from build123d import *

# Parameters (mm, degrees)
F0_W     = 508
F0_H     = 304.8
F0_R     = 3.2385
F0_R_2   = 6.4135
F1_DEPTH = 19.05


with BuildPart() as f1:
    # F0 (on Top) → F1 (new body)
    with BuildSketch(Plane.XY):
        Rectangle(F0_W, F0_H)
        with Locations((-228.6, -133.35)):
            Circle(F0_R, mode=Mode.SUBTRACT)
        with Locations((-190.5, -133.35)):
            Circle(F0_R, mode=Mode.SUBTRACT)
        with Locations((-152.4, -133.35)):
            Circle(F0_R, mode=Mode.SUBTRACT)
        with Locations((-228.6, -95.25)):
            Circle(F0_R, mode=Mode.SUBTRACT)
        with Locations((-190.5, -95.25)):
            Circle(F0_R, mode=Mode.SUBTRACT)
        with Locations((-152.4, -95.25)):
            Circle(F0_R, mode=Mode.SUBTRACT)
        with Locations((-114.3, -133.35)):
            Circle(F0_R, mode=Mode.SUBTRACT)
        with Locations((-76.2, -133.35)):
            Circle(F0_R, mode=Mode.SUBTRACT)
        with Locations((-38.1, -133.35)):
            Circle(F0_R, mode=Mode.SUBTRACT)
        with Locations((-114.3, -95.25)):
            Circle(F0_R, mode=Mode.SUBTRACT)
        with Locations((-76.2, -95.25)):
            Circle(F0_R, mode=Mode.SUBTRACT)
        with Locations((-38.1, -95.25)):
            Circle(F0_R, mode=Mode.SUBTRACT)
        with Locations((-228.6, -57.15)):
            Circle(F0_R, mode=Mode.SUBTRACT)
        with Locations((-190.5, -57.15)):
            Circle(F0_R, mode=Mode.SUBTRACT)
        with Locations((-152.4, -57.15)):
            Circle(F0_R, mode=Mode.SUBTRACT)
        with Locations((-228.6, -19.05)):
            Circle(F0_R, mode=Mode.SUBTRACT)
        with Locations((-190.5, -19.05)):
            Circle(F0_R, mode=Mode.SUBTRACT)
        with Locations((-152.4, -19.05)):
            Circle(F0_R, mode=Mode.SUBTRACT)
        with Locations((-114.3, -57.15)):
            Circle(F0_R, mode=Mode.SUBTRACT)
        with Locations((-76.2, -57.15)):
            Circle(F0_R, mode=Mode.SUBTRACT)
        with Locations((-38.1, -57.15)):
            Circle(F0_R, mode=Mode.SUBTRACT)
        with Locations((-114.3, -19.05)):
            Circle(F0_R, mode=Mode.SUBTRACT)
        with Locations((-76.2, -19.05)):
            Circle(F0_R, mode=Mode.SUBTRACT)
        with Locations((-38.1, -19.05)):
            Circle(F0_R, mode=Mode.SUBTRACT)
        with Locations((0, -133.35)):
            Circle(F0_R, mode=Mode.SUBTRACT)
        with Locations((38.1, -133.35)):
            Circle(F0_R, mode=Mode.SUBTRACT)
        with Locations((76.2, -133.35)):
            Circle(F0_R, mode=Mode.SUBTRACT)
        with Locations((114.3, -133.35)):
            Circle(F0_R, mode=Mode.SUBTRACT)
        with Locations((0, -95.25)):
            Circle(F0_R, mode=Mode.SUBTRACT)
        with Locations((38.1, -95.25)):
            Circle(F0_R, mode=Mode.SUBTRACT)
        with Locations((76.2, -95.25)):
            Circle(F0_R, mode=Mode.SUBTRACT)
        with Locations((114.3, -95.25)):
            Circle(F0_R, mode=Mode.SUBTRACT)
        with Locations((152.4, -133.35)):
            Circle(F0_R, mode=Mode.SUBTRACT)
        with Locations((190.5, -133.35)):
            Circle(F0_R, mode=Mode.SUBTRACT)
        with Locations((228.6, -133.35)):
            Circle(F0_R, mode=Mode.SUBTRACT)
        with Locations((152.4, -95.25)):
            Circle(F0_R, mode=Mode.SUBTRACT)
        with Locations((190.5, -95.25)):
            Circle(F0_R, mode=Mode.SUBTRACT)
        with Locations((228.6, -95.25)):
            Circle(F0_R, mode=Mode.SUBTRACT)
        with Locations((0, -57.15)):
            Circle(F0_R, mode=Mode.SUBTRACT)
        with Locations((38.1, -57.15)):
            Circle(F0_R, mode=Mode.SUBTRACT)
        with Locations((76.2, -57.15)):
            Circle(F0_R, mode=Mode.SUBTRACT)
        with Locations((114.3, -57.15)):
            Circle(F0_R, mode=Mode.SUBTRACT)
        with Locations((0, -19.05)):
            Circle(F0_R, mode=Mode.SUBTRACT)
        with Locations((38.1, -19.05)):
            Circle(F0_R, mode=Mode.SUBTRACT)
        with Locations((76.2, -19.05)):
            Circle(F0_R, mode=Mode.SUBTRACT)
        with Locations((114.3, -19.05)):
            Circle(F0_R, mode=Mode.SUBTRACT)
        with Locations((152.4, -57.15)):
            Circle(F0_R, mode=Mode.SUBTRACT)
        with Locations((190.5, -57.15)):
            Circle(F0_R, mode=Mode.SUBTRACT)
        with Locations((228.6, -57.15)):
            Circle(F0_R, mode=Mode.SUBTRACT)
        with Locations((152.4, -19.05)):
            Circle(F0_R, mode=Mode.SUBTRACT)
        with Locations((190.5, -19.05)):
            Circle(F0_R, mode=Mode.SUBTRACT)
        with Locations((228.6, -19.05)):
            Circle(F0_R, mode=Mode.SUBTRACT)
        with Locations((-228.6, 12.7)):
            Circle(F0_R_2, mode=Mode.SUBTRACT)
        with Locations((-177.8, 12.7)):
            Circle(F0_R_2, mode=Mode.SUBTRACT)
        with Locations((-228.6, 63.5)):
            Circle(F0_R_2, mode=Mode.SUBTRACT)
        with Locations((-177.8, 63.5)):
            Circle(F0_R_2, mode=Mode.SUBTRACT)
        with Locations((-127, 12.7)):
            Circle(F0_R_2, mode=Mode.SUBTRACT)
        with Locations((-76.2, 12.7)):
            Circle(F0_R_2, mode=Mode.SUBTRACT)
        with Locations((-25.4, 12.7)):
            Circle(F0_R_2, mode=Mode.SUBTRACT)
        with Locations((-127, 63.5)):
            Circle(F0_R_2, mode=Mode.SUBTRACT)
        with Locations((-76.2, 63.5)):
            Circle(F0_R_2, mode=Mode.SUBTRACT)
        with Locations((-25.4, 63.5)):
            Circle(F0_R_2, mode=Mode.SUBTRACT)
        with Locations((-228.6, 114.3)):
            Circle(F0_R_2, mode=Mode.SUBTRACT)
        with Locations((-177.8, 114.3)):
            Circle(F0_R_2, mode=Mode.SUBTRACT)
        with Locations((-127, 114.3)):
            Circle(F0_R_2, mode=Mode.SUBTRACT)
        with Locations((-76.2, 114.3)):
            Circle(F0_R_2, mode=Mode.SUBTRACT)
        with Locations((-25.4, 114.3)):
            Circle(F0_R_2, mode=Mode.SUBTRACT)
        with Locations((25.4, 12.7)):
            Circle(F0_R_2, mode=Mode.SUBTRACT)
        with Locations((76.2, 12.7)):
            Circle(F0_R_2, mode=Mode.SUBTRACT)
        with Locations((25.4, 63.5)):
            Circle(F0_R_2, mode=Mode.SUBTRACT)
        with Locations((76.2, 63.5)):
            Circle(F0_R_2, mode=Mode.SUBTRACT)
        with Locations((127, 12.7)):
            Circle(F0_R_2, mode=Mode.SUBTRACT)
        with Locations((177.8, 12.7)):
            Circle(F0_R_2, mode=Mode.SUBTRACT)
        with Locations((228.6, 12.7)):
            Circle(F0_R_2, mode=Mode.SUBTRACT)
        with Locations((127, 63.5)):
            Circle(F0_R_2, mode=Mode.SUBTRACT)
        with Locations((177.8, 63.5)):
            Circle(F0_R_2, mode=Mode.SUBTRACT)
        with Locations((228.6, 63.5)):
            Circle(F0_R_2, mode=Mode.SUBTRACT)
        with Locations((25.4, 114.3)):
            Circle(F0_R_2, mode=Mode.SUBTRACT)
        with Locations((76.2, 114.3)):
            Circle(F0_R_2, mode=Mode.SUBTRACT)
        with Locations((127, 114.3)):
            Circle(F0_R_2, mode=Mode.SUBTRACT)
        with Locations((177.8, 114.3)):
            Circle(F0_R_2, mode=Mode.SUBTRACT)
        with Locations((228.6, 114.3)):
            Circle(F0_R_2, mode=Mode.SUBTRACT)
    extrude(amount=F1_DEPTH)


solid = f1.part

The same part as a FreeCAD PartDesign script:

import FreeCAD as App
import Part
import Sketcher
Q = App.Units.Quantity

doc = App.newDocument("Part")
body = doc.addObject("PartDesign::Body", "Body")

# Sketch on XY plane
sketch1 = body.newObject("Sketcher::SketchObject", "Sketch")
sketch1.AttachmentSupport = (doc.getObject("XY_Plane"), [""])
sketch1.MapMode = "FlatFace"
sketch1.addGeometry([
    Part.LineSegment(App.Vector(-254, 152.4, 0), App.Vector(-254, -152.4, 0)),  # 0
    Part.LineSegment(App.Vector(-254, -152.4, 0), App.Vector(254, -152.4, 0)),  # 1
    Part.LineSegment(App.Vector(254, -152.4, 0), App.Vector(254, 152.4, 0)),  # 2
    Part.LineSegment(App.Vector(254, 152.4, 0), App.Vector(-254, 152.4, 0)),  # 3
    Part.Circle(App.Vector(-228.6, -133.3, 0), App.Vector(0, 0, 1), 3.2),  # 4
    Part.Circle(App.Vector(-190.5, -133.3, 0), App.Vector(0, 0, 1), 3.2),  # 5
    Part.Circle(App.Vector(-152.4, -133.3, 0), App.Vector(0, 0, 1), 3.2),  # 6
    Part.Circle(App.Vector(-228.6, -95.2, 0), App.Vector(0, 0, 1), 3.2),  # 7
    Part.Circle(App.Vector(-190.5, -95.2, 0), App.Vector(0, 0, 1), 3.2),  # 8
    Part.Circle(App.Vector(-152.4, -95.2, 0), App.Vector(0, 0, 1), 3.2),  # 9
    Part.Circle(App.Vector(-114.3, -133.3, 0), App.Vector(0, 0, 1), 3.2),  # 10
    Part.Circle(App.Vector(-76.2, -133.3, 0), App.Vector(0, 0, 1), 3.2),  # 11
    Part.Circle(App.Vector(-38.1, -133.3, 0), App.Vector(0, 0, 1), 3.2),  # 12
    Part.Circle(App.Vector(-114.3, -95.2, 0), App.Vector(0, 0, 1), 3.2),  # 13
    Part.Circle(App.Vector(-76.2, -95.2, 0), App.Vector(0, 0, 1), 3.2),  # 14
    Part.Circle(App.Vector(-38.1, -95.2, 0), App.Vector(0, 0, 1), 3.2),  # 15
    Part.Circle(App.Vector(-228.6, -57.1, 0), App.Vector(0, 0, 1), 3.2),  # 16
    Part.Circle(App.Vector(-190.5, -57.1, 0), App.Vector(0, 0, 1), 3.2),  # 17
    Part.Circle(App.Vector(-152.4, -57.1, 0), App.Vector(0, 0, 1), 3.2),  # 18
    Part.Circle(App.Vector(-228.6, -19.1, 0), App.Vector(0, 0, 1), 3.2),  # 19
    Part.Circle(App.Vector(-190.5, -19.1, 0), App.Vector(0, 0, 1), 3.2),  # 20
    Part.Circle(App.Vector(-152.4, -19.1, 0), App.Vector(0, 0, 1), 3.2),  # 21
    Part.Circle(App.Vector(-114.3, -57.1, 0), App.Vector(0, 0, 1), 3.2),  # 22
    Part.Circle(App.Vector(-76.2, -57.1, 0), App.Vector(0, 0, 1), 3.2),  # 23
    Part.Circle(App.Vector(-38.1, -57.1, 0), App.Vector(0, 0, 1), 3.2),  # 24
    Part.Circle(App.Vector(-114.3, -19.1, 0), App.Vector(0, 0, 1), 3.2),  # 25
    Part.Circle(App.Vector(-76.2, -19.1, 0), App.Vector(0, 0, 1), 3.2),  # 26
    Part.Circle(App.Vector(-38.1, -19.1, 0), App.Vector(0, 0, 1), 3.2),  # 27
    Part.Circle(App.Vector(0, -133.3, 0), App.Vector(0, 0, 1), 3.2),  # 28
    Part.Circle(App.Vector(38.1, -133.3, 0), App.Vector(0, 0, 1), 3.2),  # 29
    Part.Circle(App.Vector(76.2, -133.3, 0), App.Vector(0, 0, 1), 3.2),  # 30
    Part.Circle(App.Vector(114.3, -133.3, 0), App.Vector(0, 0, 1), 3.2),  # 31
    Part.Circle(App.Vector(0, -95.2, 0), App.Vector(0, 0, 1), 3.2),  # 32
    Part.Circle(App.Vector(38.1, -95.2, 0), App.Vector(0, 0, 1), 3.2),  # 33
    Part.Circle(App.Vector(76.2, -95.2, 0), App.Vector(0, 0, 1), 3.2),  # 34
    Part.Circle(App.Vector(114.3, -95.2, 0), App.Vector(0, 0, 1), 3.2),  # 35
    Part.Circle(App.Vector(152.4, -133.3, 0), App.Vector(0, 0, 1), 3.2),  # 36
    Part.Circle(App.Vector(190.5, -133.3, 0), App.Vector(0, 0, 1), 3.2),  # 37
    Part.Circle(App.Vector(228.6, -133.3, 0), App.Vector(0, 0, 1), 3.2),  # 38
    Part.Circle(App.Vector(152.4, -95.2, 0), App.Vector(0, 0, 1), 3.2),  # 39
    Part.Circle(App.Vector(190.5, -95.2, 0), App.Vector(0, 0, 1), 3.2),  # 40
    Part.Circle(App.Vector(228.6, -95.2, 0), App.Vector(0, 0, 1), 3.2),  # 41
    Part.Circle(App.Vector(0, -57.1, 0), App.Vector(0, 0, 1), 3.2),  # 42
    Part.Circle(App.Vector(38.1, -57.1, 0), App.Vector(0, 0, 1), 3.2),  # 43
    Part.Circle(App.Vector(76.2, -57.1, 0), App.Vector(0, 0, 1), 3.2),  # 44
    Part.Circle(App.Vector(114.3, -57.1, 0), App.Vector(0, 0, 1), 3.2),  # 45
    Part.Circle(App.Vector(0, -19.1, 0), App.Vector(0, 0, 1), 3.2),  # 46
    Part.Circle(App.Vector(38.1, -19.1, 0), App.Vector(0, 0, 1), 3.2),  # 47
    Part.Circle(App.Vector(76.2, -19.1, 0), App.Vector(0, 0, 1), 3.2),  # 48
    Part.Circle(App.Vector(114.3, -19.1, 0), App.Vector(0, 0, 1), 3.2),  # 49
    Part.Circle(App.Vector(152.4, -57.1, 0), App.Vector(0, 0, 1), 3.2),  # 50
    Part.Circle(App.Vector(190.5, -57.1, 0), App.Vector(0, 0, 1), 3.2),  # 51
    Part.Circle(App.Vector(228.6, -57.1, 0), App.Vector(0, 0, 1), 3.2),  # 52
    Part.Circle(App.Vector(152.4, -19.1, 0), App.Vector(0, 0, 1), 3.2),  # 53
    Part.Circle(App.Vector(190.5, -19.1, 0), App.Vector(0, 0, 1), 3.2),  # 54
    Part.Circle(App.Vector(228.6, -19.1, 0), App.Vector(0, 0, 1), 3.2),  # 55
    Part.Circle(App.Vector(-228.6, 12.7, 0), App.Vector(0, 0, 1), 6.4),  # 56
    Part.Circle(App.Vector(-177.8, 12.7, 0), App.Vector(0, 0, 1), 6.4),  # 57
    Part.Circle(App.Vector(-127, 12.7, 0), App.Vector(0, 0, 1), 6.4),  # 58
    Part.Circle(App.Vector(-76.2, 12.7, 0), App.Vector(0, 0, 1), 6.4),  # 59
    Part.Circle(App.Vector(-25.4, 12.7, 0), App.Vector(0, 0, 1), 6.4),  # 60
    Part.Circle(App.Vector(-228.6, 63.5, 0), App.Vector(0, 0, 1), 6.4),  # 61
    Part.Circle(App.Vector(-177.8, 63.5, 0), App.Vector(0, 0, 1), 6.4),  # 62
    Part.Circle(App.Vector(-127, 63.5, 0), App.Vector(0, 0, 1), 6.4),  # 63
    Part.Circle(App.Vector(-228.6, 114.3, 0), App.Vector(0, 0, 1), 6.4),  # 64
    Part.Circle(App.Vector(-177.8, 114.3, 0), App.Vector(0, 0, 1), 6.4),  # 65
    Part.Circle(App.Vector(-127, 114.3, 0), App.Vector(0, 0, 1), 6.4),  # 66
    Part.Circle(App.Vector(-76.2, 63.5, 0), App.Vector(0, 0, 1), 6.4),  # 67
    Part.Circle(App.Vector(-25.4, 63.5, 0), App.Vector(0, 0, 1), 6.4),  # 68
    Part.Circle(App.Vector(-76.2, 114.3, 0), App.Vector(0, 0, 1), 6.4),  # 69
    Part.Circle(App.Vector(-25.4, 114.3, 0), App.Vector(0, 0, 1), 6.4),  # 70
    Part.Circle(App.Vector(25.4, 12.7, 0), App.Vector(0, 0, 1), 6.4),  # 71
    Part.Circle(App.Vector(76.2, 12.7, 0), App.Vector(0, 0, 1), 6.4),  # 72
    Part.Circle(App.Vector(127, 12.7, 0), App.Vector(0, 0, 1), 6.4),  # 73
    Part.Circle(App.Vector(177.8, 12.7, 0), App.Vector(0, 0, 1), 6.4),  # 74
    Part.Circle(App.Vector(228.6, 12.7, 0), App.Vector(0, 0, 1), 6.4),  # 75
    Part.Circle(App.Vector(25.4, 63.5, 0), App.Vector(0, 0, 1), 6.4),  # 76
    Part.Circle(App.Vector(76.2, 63.5, 0), App.Vector(0, 0, 1), 6.4),  # 77
    Part.Circle(App.Vector(25.4, 114.3, 0), App.Vector(0, 0, 1), 6.4),  # 78
    Part.Circle(App.Vector(76.2, 114.3, 0), App.Vector(0, 0, 1), 6.4),  # 79
    Part.Circle(App.Vector(127, 63.5, 0), App.Vector(0, 0, 1), 6.4),  # 80
    Part.Circle(App.Vector(177.8, 63.5, 0), App.Vector(0, 0, 1), 6.4),  # 81
    Part.Circle(App.Vector(228.6, 63.5, 0), App.Vector(0, 0, 1), 6.4),  # 82
    Part.Circle(App.Vector(127, 114.3, 0), App.Vector(0, 0, 1), 6.4),  # 83
    Part.Circle(App.Vector(177.8, 114.3, 0), App.Vector(0, 0, 1), 6.4),  # 84
    Part.Circle(App.Vector(228.6, 114.3, 0), App.Vector(0, 0, 1), 6.4),  # 85
], False)
sketch1.addConstraint([
    Sketcher.Constraint("Coincident", 0, 2, 1, 1),
    Sketcher.Constraint("Coincident", 1, 2, 2, 1),
    Sketcher.Constraint("Coincident", 2, 2, 3, 1),
    Sketcher.Constraint("Coincident", 3, 2, 0, 1),
    Sketcher.Constraint("Vertical", 0),
    Sketcher.Constraint("Horizontal", 1),
    Sketcher.Constraint("Vertical", 2),
    Sketcher.Constraint("Horizontal", 3),
    Sketcher.Constraint("Equal", 4, 5),
    Sketcher.Constraint("Equal", 5, 6),
    Sketcher.Constraint("Equal", 6, 7),
    Sketcher.Constraint("Equal", 7, 8),
    Sketcher.Constraint("Equal", 8, 9),
    Sketcher.Constraint("Equal", 9, 10),
    Sketcher.Constraint("Equal", 10, 11),
    Sketcher.Constraint("Equal", 11, 12),
    Sketcher.Constraint("Equal", 12, 13),
    Sketcher.Constraint("Equal", 13, 14),
    Sketcher.Constraint("Equal", 14, 15),
    Sketcher.Constraint("Equal", 15, 16),
    Sketcher.Constraint("Equal", 16, 17),
    Sketcher.Constraint("Equal", 17, 18),
    Sketcher.Constraint("Equal", 18, 19),
    Sketcher.Constraint("Equal", 19, 20),
    Sketcher.Constraint("Equal", 20, 21),
    Sketcher.Constraint("Equal", 21, 22),
    Sketcher.Constraint("Equal", 22, 23),
    Sketcher.Constraint("Equal", 23, 24),
    Sketcher.Constraint("Equal", 24, 25),
    Sketcher.Constraint("Equal", 25, 26),
    Sketcher.Constraint("Equal", 26, 27),
    Sketcher.Constraint("Equal", 27, 28),
    Sketcher.Constraint("Equal", 28, 29),
    Sketcher.Constraint("Equal", 29, 30),
    Sketcher.Constraint("Equal", 30, 31),
    Sketcher.Constraint("Equal", 31, 32),
    Sketcher.Constraint("Equal", 32, 33),
    Sketcher.Constraint("Equal", 33, 34),
    Sketcher.Constraint("Equal", 34, 35),
    Sketcher.Constraint("Equal", 35, 36),
    Sketcher.Constraint("Equal", 36, 37),
    Sketcher.Constraint("Equal", 37, 38),
    Sketcher.Constraint("Equal", 38, 39),
    Sketcher.Constraint("Equal", 39, 40),
    Sketcher.Constraint("Equal", 40, 41),
    Sketcher.Constraint("Equal", 41, 42),
    Sketcher.Constraint("Equal", 42, 43),
    Sketcher.Constraint("Equal", 43, 44),
    Sketcher.Constraint("Equal", 44, 45),
    Sketcher.Constraint("Equal", 45, 46),
    Sketcher.Constraint("Equal", 46, 47),
    Sketcher.Constraint("Equal", 47, 48),
    Sketcher.Constraint("Equal", 48, 49),
    Sketcher.Constraint("Equal", 49, 50),
    Sketcher.Constraint("Equal", 50, 51),
    Sketcher.Constraint("Equal", 51, 52),
    Sketcher.Constraint("Equal", 52, 53),
    Sketcher.Constraint("Equal", 53, 54),
    Sketcher.Constraint("Equal", 54, 55),
    Sketcher.Constraint("Equal", 56, 57),
    Sketcher.Constraint("Equal", 57, 58),
    Sketcher.Constraint("Equal", 58, 59),
    Sketcher.Constraint("Equal", 59, 60),
    Sketcher.Constraint("Equal", 60, 61),
    Sketcher.Constraint("Equal", 61, 62),
    Sketcher.Constraint("Equal", 62, 63),
    Sketcher.Constraint("Equal", 63, 64),
    Sketcher.Constraint("Equal", 64, 65),
    Sketcher.Constraint("Equal", 65, 66),
    Sketcher.Constraint("Equal", 66, 67),
    Sketcher.Constraint("Equal", 67, 68),
    Sketcher.Constraint("Equal", 68, 69),
    Sketcher.Constraint("Equal", 69, 70),
    Sketcher.Constraint("Equal", 70, 71),
    Sketcher.Constraint("Equal", 71, 72),
    Sketcher.Constraint("Equal", 72, 73),
    Sketcher.Constraint("Equal", 73, 74),
    Sketcher.Constraint("Equal", 74, 75),
    Sketcher.Constraint("Equal", 75, 76),
    Sketcher.Constraint("Equal", 76, 77),
    Sketcher.Constraint("Equal", 77, 78),
    Sketcher.Constraint("Equal", 78, 79),
    Sketcher.Constraint("Equal", 79, 80),
    Sketcher.Constraint("Equal", 80, 81),
    Sketcher.Constraint("Equal", 81, 82),
    Sketcher.Constraint("Equal", 82, 83),
    Sketcher.Constraint("Equal", 83, 84),
    Sketcher.Constraint("Equal", 84, 85),
    Sketcher.Constraint("Symmetric", 0, 2, 2, 2, -1, 1),
    Sketcher.Constraint("Symmetric", 12, 3, 29, 3, -2),
    Sketcher.Constraint("Symmetric", 11, 3, 30, 3, -2),
    Sketcher.Constraint("Symmetric", 10, 3, 31, 3, -2),
    Sketcher.Constraint("Symmetric", 15, 3, 33, 3, -2),
    Sketcher.Constraint("Symmetric", 14, 3, 34, 3, -2),
    Sketcher.Constraint("Symmetric", 13, 3, 35, 3, -2),
    Sketcher.Constraint("Symmetric", 6, 3, 36, 3, -2),
    Sketcher.Constraint("Symmetric", 5, 3, 37, 3, -2),
    Sketcher.Constraint("Symmetric", 4, 3, 38, 3, -2),
    Sketcher.Constraint("Symmetric", 9, 3, 39, 3, -2),
    Sketcher.Constraint("Symmetric", 8, 3, 40, 3, -2),
    Sketcher.Constraint("Symmetric", 7, 3, 41, 3, -2),
    Sketcher.Constraint("Symmetric", 24, 3, 43, 3, -2),
    Sketcher.Constraint("Symmetric", 23, 3, 44, 3, -2),
    Sketcher.Constraint("Symmetric", 22, 3, 45, 3, -2),
    Sketcher.Constraint("Symmetric", 27, 3, 47, 3, -2),
    Sketcher.Constraint("Symmetric", 26, 3, 48, 3, -2),
    Sketcher.Constraint("Symmetric", 25, 3, 49, 3, -2),
    Sketcher.Constraint("Symmetric", 18, 3, 50, 3, -2),
    Sketcher.Constraint("Symmetric", 17, 3, 51, 3, -2),
    Sketcher.Constraint("Symmetric", 16, 3, 52, 3, -2),
    Sketcher.Constraint("Symmetric", 21, 3, 53, 3, -2),
    Sketcher.Constraint("Symmetric", 20, 3, 54, 3, -2),
    Sketcher.Constraint("Symmetric", 19, 3, 55, 3, -2),
    Sketcher.Constraint("Symmetric", 60, 3, 71, 3, -2),
    Sketcher.Constraint("Symmetric", 59, 3, 72, 3, -2),
    Sketcher.Constraint("Symmetric", 58, 3, 73, 3, -2),
    Sketcher.Constraint("Symmetric", 57, 3, 74, 3, -2),
    Sketcher.Constraint("Symmetric", 56, 3, 75, 3, -2),
    Sketcher.Constraint("Symmetric", 68, 3, 76, 3, -2),
    Sketcher.Constraint("Symmetric", 67, 3, 77, 3, -2),
    Sketcher.Constraint("Symmetric", 70, 3, 78, 3, -2),
    Sketcher.Constraint("Symmetric", 69, 3, 79, 3, -2),
    Sketcher.Constraint("Symmetric", 63, 3, 80, 3, -2),
    Sketcher.Constraint("Symmetric", 62, 3, 81, 3, -2),
    Sketcher.Constraint("Symmetric", 61, 3, 82, 3, -2),
    Sketcher.Constraint("Symmetric", 66, 3, 83, 3, -2),
    Sketcher.Constraint("Symmetric", 65, 3, 84, 3, -2),
    Sketcher.Constraint("Symmetric", 64, 3, 85, 3, -2),
    Sketcher.Constraint("PointOnObject", 28, 3, -2),
    Sketcher.Constraint("PointOnObject", 32, 3, -2),
    Sketcher.Constraint("PointOnObject", 42, 3, -2),
    Sketcher.Constraint("PointOnObject", 46, 3, -2),
    Sketcher.Constraint("Horizontal", 4, 3, 5, 3),
    Sketcher.Constraint("Horizontal", 5, 3, 6, 3),
    Sketcher.Constraint("Horizontal", 7, 3, 8, 3),
    Sketcher.Constraint("Horizontal", 8, 3, 9, 3),
    Sketcher.Constraint("Horizontal", 6, 3, 10, 3),
    Sketcher.Constraint("Horizontal", 10, 3, 11, 3),
    Sketcher.Constraint("Horizontal", 11, 3, 12, 3),
    Sketcher.Constraint("Horizontal", 9, 3, 13, 3),
    Sketcher.Constraint("Horizontal", 13, 3, 14, 3),
    Sketcher.Constraint("Horizontal", 14, 3, 15, 3),
    Sketcher.Constraint("Horizontal", 16, 3, 17, 3),
    Sketcher.Constraint("Horizontal", 17, 3, 18, 3),
    Sketcher.Constraint("Horizontal", 19, 3, 20, 3),
    Sketcher.Constraint("Horizontal", 20, 3, 21, 3),
    Sketcher.Constraint("Horizontal", 18, 3, 22, 3),
    Sketcher.Constraint("Horizontal", 22, 3, 23, 3),
    Sketcher.Constraint("Horizontal", 23, 3, 24, 3),
    Sketcher.Constraint("Horizontal", 21, 3, 25, 3),
    Sketcher.Constraint("Horizontal", 25, 3, 26, 3),
    Sketcher.Constraint("Horizontal", 26, 3, 27, 3),
    Sketcher.Constraint("Horizontal", 12, 3, 28, 3),
    Sketcher.Constraint("Horizontal", 15, 3, 32, 3),
    Sketcher.Constraint("Horizontal", 24, 3, 42, 3),
    Sketcher.Constraint("Horizontal", 27, 3, 46, 3),
    Sketcher.Constraint("Horizontal", 56, 3, 57, 3),
    Sketcher.Constraint("Horizontal", 57, 3, 58, 3),
    Sketcher.Constraint("Horizontal", 58, 3, 59, 3),
    Sketcher.Constraint("Horizontal", 59, 3, 60, 3),
    Sketcher.Constraint("Horizontal", 61, 3, 62, 3),
    Sketcher.Constraint("Horizontal", 62, 3, 63, 3),
    Sketcher.Constraint("Horizontal", 64, 3, 65, 3),
    Sketcher.Constraint("Horizontal", 65, 3, 66, 3),
    Sketcher.Constraint("Horizontal", 63, 3, 67, 3),
    Sketcher.Constraint("Horizontal", 67, 3, 68, 3),
    Sketcher.Constraint("Horizontal", 66, 3, 69, 3),
    Sketcher.Constraint("Horizontal", 69, 3, 70, 3),
    Sketcher.Constraint("Vertical", 4, 3, 7, 3),
    Sketcher.Constraint("Vertical", 5, 3, 8, 3),
    Sketcher.Constraint("Vertical", 6, 3, 9, 3),
    Sketcher.Constraint("Vertical", 10, 3, 13, 3),
    Sketcher.Constraint("Vertical", 11, 3, 14, 3),
    Sketcher.Constraint("Vertical", 12, 3, 15, 3),
    Sketcher.Constraint("Vertical", 7, 3, 16, 3),
    Sketcher.Constraint("Vertical", 8, 3, 17, 3),
    Sketcher.Constraint("Vertical", 9, 3, 18, 3),
    Sketcher.Constraint("Vertical", 16, 3, 19, 3),
    Sketcher.Constraint("Vertical", 17, 3, 20, 3),
    Sketcher.Constraint("Vertical", 18, 3, 21, 3),
    Sketcher.Constraint("Vertical", 13, 3, 22, 3),
    Sketcher.Constraint("Vertical", 14, 3, 23, 3),
    Sketcher.Constraint("Vertical", 15, 3, 24, 3),
    Sketcher.Constraint("Vertical", 22, 3, 25, 3),
    Sketcher.Constraint("Vertical", 23, 3, 26, 3),
    Sketcher.Constraint("Vertical", 24, 3, 27, 3),
    Sketcher.Constraint("Vertical", 19, 3, 56, 3),
    Sketcher.Constraint("Vertical", 26, 3, 59, 3),
    Sketcher.Constraint("Vertical", 56, 3, 61, 3),
    Sketcher.Constraint("Vertical", 57, 3, 62, 3),
    Sketcher.Constraint("Vertical", 58, 3, 63, 3),
    Sketcher.Constraint("Vertical", 61, 3, 64, 3),
    Sketcher.Constraint("Vertical", 62, 3, 65, 3),
    Sketcher.Constraint("Vertical", 63, 3, 66, 3),
    Sketcher.Constraint("Vertical", 59, 3, 67, 3),
    Sketcher.Constraint("Vertical", 60, 3, 68, 3),
    Sketcher.Constraint("Vertical", 67, 3, 69, 3),
    Sketcher.Constraint("Vertical", 68, 3, 70, 3),
    Sketcher.Constraint("DistanceX", 1, 1, 1, 2, Q("20 in")),
    Sketcher.Constraint("DistanceY", 0, 2, 0, 1, Q("12 in")),
    Sketcher.Constraint("Diameter", 4, Q("0.255 in")),
    Sketcher.Constraint("Diameter", 56, Q("0.505 in")),
    Sketcher.Constraint("DistanceX", 4, 3, -1, 1, Q("9 in")),
    Sketcher.Constraint("DistanceX", 6, 3, -1, 1, Q("6 in")),
    Sketcher.Constraint("DistanceX", 11, 3, -1, 1, Q("3 in")),
    Sketcher.Constraint("DistanceX", 57, 3, -1, 1, Q("7 in")),
    Sketcher.Constraint("DistanceX", 58, 3, -1, 1, Q("5 in")),
    Sketcher.Constraint("DistanceX", 60, 3, -1, 1, Q("1 in")),
    Sketcher.Constraint("DistanceX", 5, 3, -1, 1, Q("7.5 in")),
    Sketcher.Constraint("DistanceX", 10, 3, -1, 1, Q("4.5 in")),
    Sketcher.Constraint("DistanceX", 12, 3, -1, 1, Q("1.5 in")),
    Sketcher.Constraint("DistanceY", -1, 1, 56, 3, Q("0.5 in")),
    Sketcher.Constraint("DistanceY", -1, 1, 61, 3, Q("2.5 in")),
    Sketcher.Constraint("DistanceY", -1, 1, 64, 3, Q("4.5 in")),
    Sketcher.Constraint("DistanceY", 4, 3, -1, 1, Q("5.25 in")),
    Sketcher.Constraint("DistanceY", 7, 3, -1, 1, Q("3.75 in")),
    Sketcher.Constraint("DistanceY", 16, 3, -1, 1, Q("2.25 in")),
    Sketcher.Constraint("DistanceY", 19, 3, -1, 1, Q("0.75 in")),
])
pad1 = body.newObject("PartDesign::Pad", "Pad")
pad1.Profile = sketch1
pad1.Length = Q("0.75 in")

doc.recompute()
